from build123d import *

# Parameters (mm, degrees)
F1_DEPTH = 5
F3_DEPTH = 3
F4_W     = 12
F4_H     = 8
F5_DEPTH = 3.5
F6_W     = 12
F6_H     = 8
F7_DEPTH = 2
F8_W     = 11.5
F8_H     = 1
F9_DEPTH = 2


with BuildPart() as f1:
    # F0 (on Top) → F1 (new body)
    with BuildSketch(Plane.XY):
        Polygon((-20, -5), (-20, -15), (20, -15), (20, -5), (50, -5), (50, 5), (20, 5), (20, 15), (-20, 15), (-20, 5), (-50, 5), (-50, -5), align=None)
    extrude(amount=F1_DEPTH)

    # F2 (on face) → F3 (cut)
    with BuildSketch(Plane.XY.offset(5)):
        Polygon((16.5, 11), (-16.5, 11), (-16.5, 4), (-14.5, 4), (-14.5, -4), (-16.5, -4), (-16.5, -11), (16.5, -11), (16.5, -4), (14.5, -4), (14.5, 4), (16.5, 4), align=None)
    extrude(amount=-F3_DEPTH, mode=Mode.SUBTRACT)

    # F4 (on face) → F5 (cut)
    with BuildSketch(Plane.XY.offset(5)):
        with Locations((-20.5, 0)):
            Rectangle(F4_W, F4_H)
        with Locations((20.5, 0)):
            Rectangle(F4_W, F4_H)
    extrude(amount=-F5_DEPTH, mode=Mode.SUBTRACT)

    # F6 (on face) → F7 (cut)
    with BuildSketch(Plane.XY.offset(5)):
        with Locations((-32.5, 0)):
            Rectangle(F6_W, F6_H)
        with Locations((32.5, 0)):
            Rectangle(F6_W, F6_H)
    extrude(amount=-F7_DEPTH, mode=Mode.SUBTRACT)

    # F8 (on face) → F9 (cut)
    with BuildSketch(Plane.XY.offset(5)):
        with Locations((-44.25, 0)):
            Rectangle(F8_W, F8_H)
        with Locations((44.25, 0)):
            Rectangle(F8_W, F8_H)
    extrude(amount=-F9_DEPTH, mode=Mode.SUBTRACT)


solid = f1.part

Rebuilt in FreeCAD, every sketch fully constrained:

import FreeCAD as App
import Part
import Sketcher
from FreeCAD import Vector

doc = App.newDocument("Part")
body = doc.addObject("PartDesign::Body", "Body")

# Sketch on XY plane
sketch1 = doc.addObject("Sketcher::SketchObject", "Sketch")
body.addObject(sketch1)
sketch1.AttachmentSupport = (doc.XY_Plane, [""])
sketch1.MapMode = "FlatFace"
sketch1.addGeometry([
    Part.LineSegment(Vector(-20, -5, 0), Vector(-20, -15, 0)),  # 0
    Part.LineSegment(Vector(-20, -15, 0), Vector(20, -15, 0)),  # 1
    Part.LineSegment(Vector(20, -15, 0), Vector(20, -5, 0)),  # 2
    Part.LineSegment(Vector(20, -5, 0), Vector(50, -5, 0)),  # 3
    Part.LineSegment(Vector(50, -5, 0), Vector(50, 5, 0)),  # 4
    Part.LineSegment(Vector(50, 5, 0), Vector(20, 5, 0)),  # 5
    Part.LineSegment(Vector(20, 5, 0), Vector(20, 15, 0)),  # 6
    Part.LineSegment(Vector(20, 15, 0), Vector(-20, 15, 0)),  # 7
    Part.LineSegment(Vector(-20, 15, 0), Vector(-20, 5, 0)),  # 8
    Part.LineSegment(Vector(-20, 5, 0), Vector(-50, 5, 0)),  # 9
    Part.LineSegment(Vector(-50, 5, 0), Vector(-50, -5, 0)),  # 10
    Part.LineSegment(Vector(-50, -5, 0), Vector(-20, -5, 0)),  # 11
], False)
sketch1.addConstraint([
    Sketcher.Constraint("Coincident", 0, 2, 1, 1),
    Sketcher.Constraint("Coincident", 1, 2, 2, 1),
    Sketcher.Constraint("Coincident", 2, 2, 3, 1),
    Sketcher.Constraint("Coincident", 3, 2, 4, 1),
    Sketcher.Constraint("Coincident", 4, 2, 5, 1),
    Sketcher.Constraint("Coincident", 5, 2, 6, 1),
    Sketcher.Constraint("Coincident", 6, 2, 7, 1),
    Sketcher.Constraint("Coincident", 7, 2, 8, 1),
    Sketcher.Constraint("Coincident", 8, 2, 9, 1),
    Sketcher.Constraint("Coincident", 9, 2, 10, 1),
    Sketcher.Constraint("Coincident", 10, 2, 11, 1),
    Sketcher.Constraint("Coincident", 11, 2, 0, 1),
    Sketcher.Constraint("Vertical", 0),
    Sketcher.Constraint("Horizontal", 1),
    Sketcher.Constraint("Vertical", 2),
    Sketcher.Constraint("Horizontal", 3),
    Sketcher.Constraint("Vertical", 4),
    Sketcher.Constraint("Horizontal", 5),
    Sketcher.Constraint("Vertical", 6),
    Sketcher.Constraint("Horizontal", 7),
    Sketcher.Constraint("Vertical", 8),
    Sketcher.Constraint("Horizontal", 9),
    Sketcher.Constraint("Vertical", 10),
    Sketcher.Constraint("Horizontal", 11),
    Sketcher.Constraint("Symmetric", 0, 2, 6, 2, -1, 1),
    Sketcher.Constraint("Symmetric", 2, 2, 8, 2, -1, 1),
    Sketcher.Constraint("Symmetric", 4, 2, 10, 2, -1, 1),
    Sketcher.Constraint("Symmetric", 5, 2, 8, 2, -2),
    Sketcher.Constraint("Equal", 2, 4),
    Sketcher.Constraint("DistanceX", 1, 1, 1, 2, 40.0),
    Sketcher.Constraint("DistanceX", 3, 1, 3, 2, 30.0),
    Sketcher.Constraint("DistanceY", 0, 2, 0, 1, 10.0),
])
pad1 = doc.addObject("PartDesign::Pad", "Pad")
body.addObject(pad1)
pad1.Profile = sketch1
pad1.Length = 5

# Sketch on XY plane
sketch2 = doc.addObject("Sketcher::SketchObject", "Sketch001")
body.addObject(sketch2)
sketch2.AttachmentSupport = (doc.XY_Plane, [""])
sketch2.MapMode = "FlatFace"
sketch2.AttachmentOffset = App.Placement(Vector(0, 0, 5), App.Rotation())
sketch2.addGeometry([
    Part.LineSegment(Vector(16.5, 11, 0), Vector(-16.5, 11, 0)),  # 0
    Part.LineSegment(Vector(-16.5, 11, 0), Vector(-16.5, 4, 0)),  # 1
    Part.LineSegment(Vector(-16.5, 4, 0), Vector(-14.5, 4, 0)),  # 2
    Part.LineSegment(Vector(-14.5, 4, 0), Vector(-14.5, -4, 0)),  # 3
    Part.LineSegment(Vector(-14.5, -4, 0), Vector(-16.5, -4, 0)),  # 4
    Part.LineSegment(Vector(-16.5, -4, 0), Vector(-16.5, -11, 0)),  # 5
    Part.LineSegment(Vector(-16.5, -11, 0), Vector(16.5, -11, 0)),  # 6
    Part.LineSegment(Vector(16.5, -11, 0), Vector(16.5, -4, 0)),  # 7
    Part.LineSegment(Vector(16.5, -4, 0), Vector(14.5, -4, 0)),  # 8
    Part.LineSegment(Vector(14.5, -4, 0), Vector(14.5, 4, 0)),  # 9
    Part.LineSegment(Vector(14.5, 4, 0), Vector(16.5, 4, 0)),  # 10
    Part.LineSegment(Vector(16.5, 4, 0), Vector(16.5, 11, 0)),  # 11
], False)
sketch2.addConstraint([
    Sketcher.Constraint("Coincident", 0, 2, 1, 1),
    Sketcher.Constraint("Coincident", 1, 2, 2, 1),
    Sketcher.Constraint("Coincident", 2, 2, 3, 1),
    Sketcher.Constraint("Coincident", 3, 2, 4, 1),
    Sketcher.Constraint("Coincident", 4, 2, 5, 1),
    Sketcher.Constraint("Coincident", 5, 2, 6, 1),
    Sketcher.Constraint("Coincident", 6, 2, 7, 1),
    Sketcher.Constraint("Coincident", 7, 2, 8, 1),
    Sketcher.Constraint("Coincident", 8, 2, 9, 1),
    Sketcher.Constraint("Coincident", 9, 2, 10, 1),
    Sketcher.Constraint("Coincident", 10, 2, 11, 1),
    Sketcher.Constraint("Coincident", 11, 2, 0, 1),
    Sketcher.Constraint("Horizontal", 0),
    Sketcher.Constraint("Vertical", 1),
    Sketcher.Constraint("Horizontal", 2),
    Sketcher.Constraint("Vertical", 3),
    Sketcher.Constraint("Horizontal", 4),
    Sketcher.Constraint("Vertical", 5),
    Sketcher.Constraint("Horizontal", 6),
    Sketcher.Constraint("Vertical", 7),
    Sketcher.Constraint("Horizontal", 8),
    Sketcher.Constraint("Vertical", 9),
    Sketcher.Constraint("Horizontal", 10),
    Sketcher.Constraint("Vertical", 11),
    Sketcher.Constraint("Symmetric", 0, 2, 6, 2, -1, 1),
    Sketcher.Constraint("Symmetric", 2, 2, 8, 2, -1, 1),
    Sketcher.Constraint("Symmetric", 4, 2, 10, 2, -1, 1),
    Sketcher.Constraint("Symmetric", 4, 2, 7, 2, -2),
    Sketcher.Constraint("DistanceX", 0, 2, 0, 1, 33.0),
    Sketcher.Constraint("DistanceX", 2, 1, 2, 2, 2.0),
    Sketcher.Constraint("DistanceY", 1, 2, 1, 1, 7.0),
    Sketcher.Constraint("DistanceY", 3, 2, 3, 1, 8.0),
])
pocket1 = doc.addObject("PartDesign::Pocket", "Pocket")
body.addObject(pocket1)
pocket1.Profile = sketch2
pocket1.Length = 3

# Sketch on XY plane
sketch3 = doc.addObject("Sketcher::SketchObject", "Sketch002")
body.addObject(sketch3)
sketch3.AttachmentSupport = (doc.XY_Plane, [""])
sketch3.MapMode = "FlatFace"
sketch3.AttachmentOffset = App.Placement(Vector(0, 0, 5), App.Rotation())
sketch3.addGeometry([
    Part.LineSegment(Vector(-26, 4, 0), Vector(-26, -4, 0)),  # 0
    Part.LineSegment(Vector(-26, -4, 0), Vector(-14, -4, 0)),  # 1
    Part.LineSegment(Vector(-14, -4, 0), Vector(-14, 4, 0)),  # 2
    Part.LineSegment(Vector(-14, 4, 0), Vector(-26, 4, 0)),  # 3
    Part.LineSegment(Vector(14, 4, 0), Vector(14, -4, 0)),  # 4
    Part.LineSegment(Vector(14, -4, 0), Vector(26, -4, 0)),  # 5
    Part.LineSegment(Vector(26, -4, 0), Vector(26, 4, 0)),  # 6
    Part.LineSegment(Vector(26, 4, 0), Vector(14, 4, 0)),  # 7
], False)
sketch3.addConstraint([
    Sketcher.Constraint("Coincident", 0, 2, 1, 1),
    Sketcher.Constraint("Coincident", 1, 2, 2, 1),
    Sketcher.Constraint("Coincident", 2, 2, 3, 1),
    Sketcher.Constraint("Coincident", 3, 2, 0, 1),
    Sketcher.Constraint("Coincident", 4, 2, 5, 1),
    Sketcher.Constraint("Coincident", 5, 2, 6, 1),
    Sketcher.Constraint("Coincident", 6, 2, 7, 1),
    Sketcher.Constraint("Coincident", 7, 2, 4, 1),
    Sketcher.Constraint("Vertical", 0),
    Sketcher.Constraint("Horizontal", 1),
    Sketcher.Constraint("Vertical", 2),
    Sketcher.Constraint("Horizontal", 3),
    Sketcher.Constraint("Vertical", 4),
    Sketcher.Constraint("Horizontal", 5),
    Sketcher.Constraint("Vertical", 6),
    Sketcher.Constraint("Horizontal", 7),
    Sketcher.Constraint("Symmetric", 2, 2, 4, 2, -1, 1),
    Sketcher.Constraint("Symmetric", 0, 2, 6, 2, -1, 1),
    Sketcher.Constraint("Horizontal", 1, 2, 4, 2),
    Sketcher.Constraint("DistanceX", 1, 1, 1, 2, 12.0),
    Sketcher.Constraint("DistanceY", 0, 2, 0, 1, 8.0),
    Sketcher.Constraint("DistanceX", 1, 2, 4, 2, 29.0),
])
pocket2 = doc.addObject("PartDesign::Pocket", "Pocket001")
body.addObject(pocket2)
pocket2.Profile = sketch3
pocket2.Length = 3.5

# Sketch on XY plane
sketch4 = doc.addObject("Sketcher::SketchObject", "Sketch003")
body.addObject(sketch4)
sketch4.AttachmentSupport = (doc.XY_Plane, [""])
sketch4.MapMode = "FlatFace"
sketch4.AttachmentOffset = App.Placement(Vector(0, 0, 5), App.Rotation())
sketch4.addGeometry([
    Part.LineSegment(Vector(-38, 4, 0), Vector(-38, -4, 0)),  # 0
    Part.LineSegment(Vector(-38, -4, 0), Vector(-26, -4, 0)),  # 1
    Part.LineSegment(Vector(-26, -4, 0), Vector(-26, 4, 0)),  # 2
    Part.LineSegment(Vector(-26, 4, 0), Vector(-38, 4, 0)),  # 3
    Part.LineSegment(Vector(26, 4, 0), Vector(26, -4, 0)),  # 4
    Part.LineSegment(Vector(26, -4, 0), Vector(38, -4, 0)),  # 5
    Part.LineSegment(Vector(38, -4, 0), Vector(38, 4, 0)),  # 6
    Part.LineSegment(Vector(38, 4, 0), Vector(26, 4, 0)),  # 7
], False)
sketch4.addConstraint([
    Sketcher.Constraint("Coincident", 0, 2, 1, 1),
    Sketcher.Constraint("Coincident", 1, 2, 2, 1),
    Sketcher.Constraint("Coincident", 2, 2, 3, 1),
    Sketcher.Constraint("Coincident", 3, 2, 0, 1),
    Sketcher.Constraint("Coincident", 4, 2, 5, 1),
    Sketcher.Constraint("Coincident", 5, 2, 6, 1),
    Sketcher.Constraint("Coincident", 6, 2, 7, 1),
    Sketcher.Constraint("Coincident", 7, 2, 4, 1),
    Sketcher.Constraint("Vertical", 0),
    Sketcher.Constraint("Horizontal", 1),
    Sketcher.Constraint("Vertical", 2),
    Sketcher.Constraint("Horizontal", 3),
    Sketcher.Constraint("Vertical", 4),
    Sketcher.Constraint("Horizontal", 5),
    Sketcher.Constraint("Vertical", 6),
    Sketcher.Constraint("Horizontal", 7),
    Sketcher.Constraint("Symmetric", 2, 2, 4, 2, -1, 1),
    Sketcher.Constraint("Symmetric", 0, 2, 6, 2, -1, 1),
    Sketcher.Constraint("Horizontal", 1, 2, 4, 2),
    Sketcher.Constraint("DistanceX", 1, 1, 1, 2, 12.0),
    Sketcher.Constraint("DistanceY", 0, 2, 0, 1, 8.0),
    Sketcher.Constraint("DistanceX", 1, 2, 4, 2, 53.0),
])
pocket3 = doc.addObject("PartDesign::Pocket", "Pocket002")
body.addObject(pocket3)
pocket3.Profile = sketch4
pocket3.Length = 2

# Sketch on XY plane
sketch5 = doc.addObject("Sketcher::SketchObject", "Sketch004")
body.addObject(sketch5)
sketch5.AttachmentSupport = (doc.XY_Plane, [""])
sketch5.MapMode = "FlatFace"
sketch5.AttachmentOffset = App.Placement(Vector(0, 0, 5), App.Rotation())
sketch5.addGeometry([
    Part.LineSegment(Vector(-50, 0.5, 0), Vector(-50, -0.5, 0)),  # 0
    Part.LineSegment(Vector(-50, -0.5, 0), Vector(-38.5, -0.5, 0)),  # 1
    Part.LineSegment(Vector(-38.5, -0.5, 0), Vector(-38.5, 0.5, 0)),  # 2
    Part.LineSegment(Vector(-38.5, 0.5, 0), Vector(-50, 0.5, 0)),  # 3
    Part.LineSegment(Vector(38.5, 0.5, 0), Vector(38.5, -0.5, 0)),  # 4
    Part.LineSegment(Vector(38.5, -0.5, 0), Vector(50, -0.5, 0)),  # 5
    Part.LineSegment(Vector(50, -0.5, 0), Vector(50, 0.5, 0)),  # 6
    Part.LineSegment(Vector(50, 0.5, 0), Vector(38.5, 0.5, 0)),  # 7
], False)
sketch5.addConstraint([
    Sketcher.Constraint("Coincident", 0, 2, 1, 1),
    Sketcher.Constraint("Coincident", 1, 2, 2, 1),
    Sketcher.Constraint("Coincident", 2, 2, 3, 1),
    Sketcher.Constraint("Coincident", 3, 2, 0, 1),
    Sketcher.Constraint("Coincident", 4, 2, 5, 1),
    Sketcher.Constraint("Coincident", 5, 2, 6, 1),
    Sketcher.Constraint("Coincident", 6, 2, 7, 1),
    Sketcher.Constraint("Coincident", 7, 2, 4, 1),
    Sketcher.Constraint("Vertical", 0),
    Sketcher.Constraint("Horizontal", 1),
    Sketcher.Constraint("Vertical", 2),
    Sketcher.Constraint("Horizontal", 3),
    Sketcher.Constraint("Vertical", 4),
    Sketcher.Constraint("Horizontal", 5),
    Sketcher.Constraint("Vertical", 6),
    Sketcher.Constraint("Horizontal", 7),
    Sketcher.Constraint("Symmetric", 2, 2, 4, 2, -1, 1),
    Sketcher.Constraint("Symmetric", 0, 2, 6, 2, -1, 1),
    Sketcher.Constraint("Horizontal", 1, 2, 4, 2),
    Sketcher.Constraint("DistanceY", 0, 2, 0, 1, 1.0),
    Sketcher.Constraint("DistanceX", 1, 1, 1, 2, 11.5),
    Sketcher.Constraint("DistanceX", 0, 2, -1, 1, 50.0),
])
pocket4 = doc.addObject("PartDesign::Pocket", "Pocket003")
body.addObject(pocket4)
pocket4.Profile = sketch5
pocket4.Length = 2

doc.recompute()
